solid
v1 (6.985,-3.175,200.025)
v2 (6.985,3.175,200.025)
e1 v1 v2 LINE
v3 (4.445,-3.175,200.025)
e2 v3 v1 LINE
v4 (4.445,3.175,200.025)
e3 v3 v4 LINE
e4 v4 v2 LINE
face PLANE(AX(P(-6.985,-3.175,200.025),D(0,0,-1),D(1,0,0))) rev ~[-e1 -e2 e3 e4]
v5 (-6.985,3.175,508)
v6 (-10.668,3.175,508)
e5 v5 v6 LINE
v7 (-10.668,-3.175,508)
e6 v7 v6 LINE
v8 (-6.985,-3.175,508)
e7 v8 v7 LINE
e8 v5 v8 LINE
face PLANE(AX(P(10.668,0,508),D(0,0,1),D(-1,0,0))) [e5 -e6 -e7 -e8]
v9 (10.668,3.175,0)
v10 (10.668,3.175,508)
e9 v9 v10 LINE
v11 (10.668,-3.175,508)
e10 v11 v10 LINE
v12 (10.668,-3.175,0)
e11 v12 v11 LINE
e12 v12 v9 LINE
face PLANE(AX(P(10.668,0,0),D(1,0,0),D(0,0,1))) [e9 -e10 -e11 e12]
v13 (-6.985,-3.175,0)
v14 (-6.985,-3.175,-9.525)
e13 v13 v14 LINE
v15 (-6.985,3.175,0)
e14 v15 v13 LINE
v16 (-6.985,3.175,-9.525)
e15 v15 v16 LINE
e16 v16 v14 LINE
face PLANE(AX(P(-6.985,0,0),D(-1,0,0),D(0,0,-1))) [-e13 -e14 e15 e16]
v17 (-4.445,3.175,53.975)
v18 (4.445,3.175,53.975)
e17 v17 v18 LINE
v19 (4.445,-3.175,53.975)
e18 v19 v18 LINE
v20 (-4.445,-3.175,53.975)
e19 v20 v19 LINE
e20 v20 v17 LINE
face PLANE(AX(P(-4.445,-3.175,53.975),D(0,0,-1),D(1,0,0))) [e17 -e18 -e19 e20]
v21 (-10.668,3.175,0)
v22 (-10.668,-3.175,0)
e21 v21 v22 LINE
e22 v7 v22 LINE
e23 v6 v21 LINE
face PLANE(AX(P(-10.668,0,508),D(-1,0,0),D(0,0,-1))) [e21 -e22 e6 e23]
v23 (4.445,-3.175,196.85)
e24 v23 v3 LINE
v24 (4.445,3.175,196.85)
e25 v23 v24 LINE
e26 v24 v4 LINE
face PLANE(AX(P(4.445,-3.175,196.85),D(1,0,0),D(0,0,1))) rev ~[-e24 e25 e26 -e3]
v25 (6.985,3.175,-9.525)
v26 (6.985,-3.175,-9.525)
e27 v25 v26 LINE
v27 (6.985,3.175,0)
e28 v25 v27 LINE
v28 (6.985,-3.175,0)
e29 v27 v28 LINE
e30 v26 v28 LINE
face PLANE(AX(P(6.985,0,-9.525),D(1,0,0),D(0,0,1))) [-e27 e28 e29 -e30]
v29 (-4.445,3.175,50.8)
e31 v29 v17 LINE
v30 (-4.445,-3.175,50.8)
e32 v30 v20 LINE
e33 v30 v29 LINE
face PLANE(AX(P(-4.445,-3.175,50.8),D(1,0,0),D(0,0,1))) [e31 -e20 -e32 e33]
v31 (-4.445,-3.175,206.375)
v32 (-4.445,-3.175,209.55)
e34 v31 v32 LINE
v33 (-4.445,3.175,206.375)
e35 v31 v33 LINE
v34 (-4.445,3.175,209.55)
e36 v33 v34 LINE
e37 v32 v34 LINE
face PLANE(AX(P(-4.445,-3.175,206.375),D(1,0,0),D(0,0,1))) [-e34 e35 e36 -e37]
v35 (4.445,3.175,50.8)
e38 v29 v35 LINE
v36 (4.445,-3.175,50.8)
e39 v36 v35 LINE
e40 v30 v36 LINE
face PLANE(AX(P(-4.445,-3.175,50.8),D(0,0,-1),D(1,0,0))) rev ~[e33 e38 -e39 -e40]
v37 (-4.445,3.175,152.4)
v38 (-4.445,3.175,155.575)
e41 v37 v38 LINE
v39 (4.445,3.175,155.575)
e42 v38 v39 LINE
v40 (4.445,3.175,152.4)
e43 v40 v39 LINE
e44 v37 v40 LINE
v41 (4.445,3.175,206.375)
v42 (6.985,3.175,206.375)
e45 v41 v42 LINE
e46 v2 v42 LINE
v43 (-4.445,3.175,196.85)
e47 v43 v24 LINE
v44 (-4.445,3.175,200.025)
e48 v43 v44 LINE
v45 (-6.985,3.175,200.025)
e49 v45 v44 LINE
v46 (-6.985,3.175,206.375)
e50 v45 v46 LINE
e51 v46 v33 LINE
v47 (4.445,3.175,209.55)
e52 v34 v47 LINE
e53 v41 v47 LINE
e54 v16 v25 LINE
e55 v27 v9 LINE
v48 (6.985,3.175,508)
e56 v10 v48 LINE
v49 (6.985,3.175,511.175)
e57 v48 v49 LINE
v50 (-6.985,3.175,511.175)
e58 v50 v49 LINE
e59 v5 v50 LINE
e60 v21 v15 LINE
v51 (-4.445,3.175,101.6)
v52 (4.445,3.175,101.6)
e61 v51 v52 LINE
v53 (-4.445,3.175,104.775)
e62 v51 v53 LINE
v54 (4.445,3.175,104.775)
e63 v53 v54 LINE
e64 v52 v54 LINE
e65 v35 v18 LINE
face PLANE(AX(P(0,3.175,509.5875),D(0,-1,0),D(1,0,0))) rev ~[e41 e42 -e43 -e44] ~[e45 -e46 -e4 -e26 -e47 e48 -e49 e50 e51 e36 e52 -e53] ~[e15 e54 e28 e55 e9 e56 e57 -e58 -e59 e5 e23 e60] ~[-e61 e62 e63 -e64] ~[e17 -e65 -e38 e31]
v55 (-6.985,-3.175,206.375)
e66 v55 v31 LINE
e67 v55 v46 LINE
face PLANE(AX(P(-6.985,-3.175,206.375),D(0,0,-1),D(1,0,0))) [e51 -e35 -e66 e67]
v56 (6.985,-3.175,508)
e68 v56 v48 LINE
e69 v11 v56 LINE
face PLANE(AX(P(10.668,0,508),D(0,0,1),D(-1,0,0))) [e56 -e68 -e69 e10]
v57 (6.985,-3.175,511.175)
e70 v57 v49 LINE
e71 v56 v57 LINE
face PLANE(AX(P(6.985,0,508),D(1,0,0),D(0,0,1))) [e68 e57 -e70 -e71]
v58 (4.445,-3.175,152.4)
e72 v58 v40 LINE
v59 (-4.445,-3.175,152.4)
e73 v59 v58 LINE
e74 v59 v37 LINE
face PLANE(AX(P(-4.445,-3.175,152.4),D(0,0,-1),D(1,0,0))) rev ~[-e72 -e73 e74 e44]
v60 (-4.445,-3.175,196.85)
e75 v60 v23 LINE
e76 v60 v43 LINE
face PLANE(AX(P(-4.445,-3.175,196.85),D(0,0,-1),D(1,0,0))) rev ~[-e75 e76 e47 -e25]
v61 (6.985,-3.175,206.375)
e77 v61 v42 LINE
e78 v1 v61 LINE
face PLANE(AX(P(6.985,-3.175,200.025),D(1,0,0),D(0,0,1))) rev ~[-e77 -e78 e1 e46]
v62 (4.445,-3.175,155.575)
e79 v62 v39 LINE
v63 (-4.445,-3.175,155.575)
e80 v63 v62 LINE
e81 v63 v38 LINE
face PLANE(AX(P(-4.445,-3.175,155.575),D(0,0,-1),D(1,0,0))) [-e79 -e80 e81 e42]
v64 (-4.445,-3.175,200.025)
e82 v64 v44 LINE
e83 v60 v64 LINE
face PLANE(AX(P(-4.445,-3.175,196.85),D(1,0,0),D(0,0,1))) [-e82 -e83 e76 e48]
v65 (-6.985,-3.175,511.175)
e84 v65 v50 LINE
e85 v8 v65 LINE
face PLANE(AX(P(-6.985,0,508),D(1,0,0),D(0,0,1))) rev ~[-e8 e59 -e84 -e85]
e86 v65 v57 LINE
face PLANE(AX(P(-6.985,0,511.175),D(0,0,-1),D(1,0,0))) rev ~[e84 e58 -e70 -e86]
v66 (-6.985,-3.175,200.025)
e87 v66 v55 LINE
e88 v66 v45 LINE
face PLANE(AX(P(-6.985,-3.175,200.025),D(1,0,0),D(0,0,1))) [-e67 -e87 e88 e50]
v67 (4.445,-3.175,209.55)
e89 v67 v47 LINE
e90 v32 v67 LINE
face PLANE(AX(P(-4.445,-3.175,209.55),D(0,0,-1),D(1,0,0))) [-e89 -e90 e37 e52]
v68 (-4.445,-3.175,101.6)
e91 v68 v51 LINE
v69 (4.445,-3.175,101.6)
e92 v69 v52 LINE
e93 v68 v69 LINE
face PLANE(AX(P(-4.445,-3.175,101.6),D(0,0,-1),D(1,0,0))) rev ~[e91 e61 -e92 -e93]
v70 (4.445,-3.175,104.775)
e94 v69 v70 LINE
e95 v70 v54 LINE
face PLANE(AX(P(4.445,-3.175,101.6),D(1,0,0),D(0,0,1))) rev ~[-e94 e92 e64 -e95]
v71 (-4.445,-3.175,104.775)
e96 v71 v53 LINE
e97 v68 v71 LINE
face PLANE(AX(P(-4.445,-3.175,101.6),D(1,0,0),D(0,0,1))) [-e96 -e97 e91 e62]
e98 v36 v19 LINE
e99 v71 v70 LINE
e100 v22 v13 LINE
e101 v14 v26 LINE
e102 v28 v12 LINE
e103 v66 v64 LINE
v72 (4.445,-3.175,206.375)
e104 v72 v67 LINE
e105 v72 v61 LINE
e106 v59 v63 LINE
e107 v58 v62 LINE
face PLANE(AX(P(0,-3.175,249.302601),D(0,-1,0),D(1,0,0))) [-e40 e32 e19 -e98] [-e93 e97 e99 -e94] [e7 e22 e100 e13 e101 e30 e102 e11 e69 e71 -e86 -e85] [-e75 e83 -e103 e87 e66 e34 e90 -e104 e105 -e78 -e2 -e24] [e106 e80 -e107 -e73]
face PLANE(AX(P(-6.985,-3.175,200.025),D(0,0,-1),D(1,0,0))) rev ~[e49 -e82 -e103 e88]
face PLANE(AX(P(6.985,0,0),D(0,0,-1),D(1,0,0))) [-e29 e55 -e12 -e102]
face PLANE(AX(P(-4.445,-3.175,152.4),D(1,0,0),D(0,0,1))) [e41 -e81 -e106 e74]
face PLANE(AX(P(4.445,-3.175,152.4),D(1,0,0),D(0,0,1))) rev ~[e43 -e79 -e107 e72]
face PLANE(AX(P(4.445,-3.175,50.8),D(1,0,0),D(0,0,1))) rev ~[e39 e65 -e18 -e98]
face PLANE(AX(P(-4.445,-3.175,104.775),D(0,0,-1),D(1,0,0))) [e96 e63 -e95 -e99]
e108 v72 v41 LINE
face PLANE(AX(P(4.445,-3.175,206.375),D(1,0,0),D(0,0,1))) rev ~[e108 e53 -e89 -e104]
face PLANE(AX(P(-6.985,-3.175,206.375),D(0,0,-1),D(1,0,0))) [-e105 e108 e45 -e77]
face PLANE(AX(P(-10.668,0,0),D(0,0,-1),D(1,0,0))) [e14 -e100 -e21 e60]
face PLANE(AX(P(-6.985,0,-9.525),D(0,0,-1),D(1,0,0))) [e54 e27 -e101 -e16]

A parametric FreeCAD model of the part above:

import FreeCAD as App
import Part
import Sketcher
Q = App.Units.Quantity

doc = App.newDocument("Part")
body = doc.addObject("PartDesign::Body", "Body")

sketch1 = body.newObject("Sketcher::SketchObject", "Sketch")
sketch1.AttachmentSupport = (doc.getObject("XZ_Plane"), [""])
sketch1.MapMode = "FlatFace"
sketch1.addGeometry(Part.LineSegment(App.Vector(-10.7, 508, 0), App.Vector(-10.7, 0, 0)), False)
sketch1.addGeometry(Part.LineSegment(App.Vector(-10.7, 0, 0), App.Vector(-7, 0, 0)), False)
sketch1.addGeometry(Part.LineSegment(App.Vector(-7, 0, 0), App.Vector(-7, -9.5, 0)), False)
sketch1.addGeometry(Part.LineSegment(App.Vector(-7, -9.5, 0), App.Vector(7, -9.5, 0)), False)
sketch1.addGeometry(Part.LineSegment(App.Vector(7, -9.5, 0), App.Vector(7, 0, 0)), False)
sketch1.addGeometry(Part.LineSegment(App.Vector(7, 0, 0), App.Vector(10.7, 0, 0)), False)
sketch1.addGeometry(Part.LineSegment(App.Vector(10.7, 0, 0), App.Vector(10.7, 508, 0)), False)
sketch1.addGeometry(Part.LineSegment(App.Vector(10.7, 508, 0), App.Vector(-10.7, 508, 0)), False)
sketch1.addConstraint(Sketcher.Constraint("Coincident", 0, 2, 1, 1))
sketch1.addConstraint(Sketcher.Constraint("Coincident", 1, 2, 2, 1))
sketch1.addConstraint(Sketcher.Constraint("Coincident", 2, 2, 3, 1))
sketch1.addConstraint(Sketcher.Constraint("Coincident", 3, 2, 4, 1))
sketch1.addConstraint(Sketcher.Constraint("Coincident", 4, 2, 5, 1))
sketch1.addConstraint(Sketcher.Constraint("Coincident", 5, 2, 6, 1))
sketch1.addConstraint(Sketcher.Constraint("Coincident", 6, 2, 7, 1))
sketch1.addConstraint(Sketcher.Constraint("Coincident", 7, 2, 0, 1))
sketch1.addConstraint(Sketcher.Constraint("Vertical", 0))
sketch1.addConstraint(Sketcher.Constraint("Horizontal", 1))
sketch1.addConstraint(Sketcher.Constraint("Vertical", 2))
sketch1.addConstraint(Sketcher.Constraint("Horizontal", 3))
sketch1.addConstraint(Sketcher.Constraint("Vertical", 4))
sketch1.addConstraint(Sketcher.Constraint("Horizontal", 5))
sketch1.addConstraint(Sketcher.Constraint("Vertical", 6))
sketch1.addConstraint(Sketcher.Constraint("Horizontal", 7))
sketch1.addConstraint(Sketcher.Constraint("Symmetric", 1, 2, 4, 2, -1, 1))
sketch1.addConstraint(Sketcher.Constraint("Symmetric", 0, 2, 5, 2, -2))
sketch1.addConstraint(Sketcher.Constraint("DistanceY", 0, 2, 0, 1, Q("20 in")))
sketch1.addConstraint(Sketcher.Constraint("DistanceX", 3, 1, 3, 2, Q("0.55 in")))
sketch1.addConstraint(Sketcher.Constraint("DistanceX", 7, 2, 7, 1, Q("0.84 in")))
sketch1.addConstraint(Sketcher.Constraint("DistanceY", 2, 2, 2, 1, Q("0.375 in")))
pad1 = body.newObject("PartDesign::Pad", "Pad")
pad1.Profile = sketch1
pad1.Length = Q("0.25 in")
pad1.Midplane = True

sketch2 = body.newObject("Sketcher::SketchObject", "Sketch001")
sketch2.AttachmentSupport = (doc.getObject("XZ_Plane"), [""])
sketch2.MapMode = "FlatFace"
sketch2.addGeometry(Part.LineSegment(App.Vector(-7, 511.2, 0), App.Vector(-7, 508, 0)), False)
sketch2.addGeometry(Part.LineSegment(App.Vector(-7, 508, 0), App.Vector(7, 508, 0)), False)
sketch2.addGeometry(Part.LineSegment(App.Vector(7, 508, 0), App.Vector(7, 511.2, 0)), False)
sketch2.addGeometry(Part.LineSegment(App.Vector(7, 511.2, 0), App.Vector(-7, 511.2, 0)), False)
sketch2.addConstraint(Sketcher.Constraint("Coincident", 0, 2, 1, 1))
sketch2.addConstraint(Sketcher.Constraint("Coincident", 1, 2, 2, 1))
sketch2.addConstraint(Sketcher.Constraint("Coincident", 2, 2, 3, 1))
sketch2.addConstraint(Sketcher.Constraint("Coincident", 3, 2, 0, 1))
sketch2.addConstraint(Sketcher.Constraint("Vertical", 0))
sketch2.addConstraint(Sketcher.Constraint("Horizontal", 1))
sketch2.addConstraint(Sketcher.Constraint("Vertical", 2))
sketch2.addConstraint(Sketcher.Constraint("Horizontal", 3))
sketch2.addConstraint(Sketcher.Constraint("DistanceY", -1, 1, 0, 2, Q("20 in")))
sketch2.addConstraint(Sketcher.Constraint("DistanceX", 1, 1, 1, 2, Q("0.55 in")))
sketch2.addConstraint(Sketcher.Constraint("DistanceY", 0, 2, 0, 1, Q("0.125 in")))
sketch2.addConstraint(Sketcher.Constraint("DistanceX", 0, 2, -1, 1, Q("0.275 in")))
pad2 = body.newObject("PartDesign::Pad", "Pad001")
pad2.Profile = sketch2
pad2.Type = "TwoLengths"
pad2.Length = Q("0.125 in")
pad2.Length2 = Q("0.125 in")

sketch3 = body.newObject("Sketcher::SketchObject", "Sketch002")
sketch3.AttachmentSupport = (doc.getObject("XZ_Plane"), [""])
sketch3.MapMode = "FlatFace"
sketch3.AttachmentOffset = App.Placement(App.Vector(0, 0, 0.125 * 25.4), App.Rotation())
sketch3.addGeometry(Part.LineSegment(App.Vector(-7, 206, 0), App.Vector(-7, 200, 0)), False)
sketch3.addGeometry(Part.LineSegment(App.Vector(-7, 200, 0), App.Vector(7, 200, 0)), False)
sketch3.addGeometry(Part.LineSegment(App.Vector(7, 200, 0), App.Vector(7, 206, 0)), False)
sketch3.addGeometry(Part.LineSegment(App.Vector(7, 206, 0), App.Vector(-7, 206, 0)), False)
sketch3.addConstraint(Sketcher.Constraint("Coincident", 0, 2, 1, 1))
sketch3.addConstraint(Sketcher.Constraint("Coincident", 1, 2, 2, 1))
sketch3.addConstraint(Sketcher.Constraint("Coincident", 2, 2, 3, 1))
sketch3.addConstraint(Sketcher.Constraint("Coincident", 3, 2, 0, 1))
sketch3.addConstraint(Sketcher.Constraint("Vertical", 0))
sketch3.addConstraint(Sketcher.Constraint("Horizontal", 1))
sketch3.addConstraint(Sketcher.Constraint("Vertical", 2))
sketch3.addConstraint(Sketcher.Constraint("Horizontal", 3))
sketch3.addConstraint(Sketcher.Constraint("DistanceX", 1, 1, 1, 2, Q("0.55 in")))
sketch3.addConstraint(Sketcher.Constraint("DistanceY", 0, 2, 0, 1, Q("0.25 in")))
sketch3.addConstraint(Sketcher.Constraint("DistanceX", 0, 2, -1, 1, Q("0.275 in")))
sketch3.addConstraint(Sketcher.Constraint("DistanceY", -1, 1, 0, 2, Q("7.875 in")))
pocket1 = body.newObject("PartDesign::Pocket", "Pocket")
pocket1.Profile = sketch3
pocket1.Type = "ThroughAll"

sketch4 = body.newObject("Sketcher::SketchObject", "Sketch003")
sketch4.AttachmentSupport = (doc.getObject("XZ_Plane"), [""])
sketch4.MapMode = "FlatFace"
sketch4.AttachmentOffset = App.Placement(App.Vector(0, 0, 0.125 * 25.4), App.Rotation())
sketch4.addGeometry(Part.LineSegment(App.Vector(-4.4, 209.6, 0), App.Vector(-4.4, 206.4, 0)), False)
sketch4.addGeometry(Part.LineSegment(App.Vector(-4.4, 206.4, 0), App.Vector(4.4, 206.4, 0)), False)
sketch4.addGeometry(Part.LineSegment(App.Vector(4.4, 206.4, 0), App.Vector(4.4, 209.6, 0)), False)
sketch4.addGeometry(Part.LineSegment(App.Vector(4.4, 209.6, 0), App.Vector(-4.4, 209.6, 0)), False)
sketch4.addGeometry(Part.LineSegment(App.Vector(-4.4, 200, 0), App.Vector(-4.4, 196.8, 0)), False)
sketch4.addGeometry(Part.LineSegment(App.Vector(-4.4, 196.8, 0), App.Vector(4.4, 196.8, 0)), False)
sketch4.addGeometry(Part.LineSegment(App.Vector(4.4, 196.8, 0), App.Vector(4.4, 200, 0)), False)
sketch4.addGeometry(Part.LineSegment(App.Vector(4.4, 200, 0), App.Vector(-4.4, 200, 0)), False)
sketch4.addConstraint(Sketcher.Constraint("Coincident", 0, 2, 1, 1))
sketch4.addConstraint(Sketcher.Constraint("Coincident", 1, 2, 2, 1))
sketch4.addConstraint(Sketcher.Constraint("Coincident", 2, 2, 3, 1))
sketch4.addConstraint(Sketcher.Constraint("Coincident", 3, 2, 0, 1))
sketch4.addConstraint(Sketcher.Constraint("Coincident", 4, 2, 5, 1))
sketch4.addConstraint(Sketcher.Constraint("Coincident", 5, 2, 6, 1))
sketch4.addConstraint(Sketcher.Constraint("Coincident", 6, 2, 7, 1))
sketch4.addConstraint(Sketcher.Constraint("Coincident", 7, 2, 4, 1))
sketch4.addConstraint(Sketcher.Constraint("Vertical", 0))
sketch4.addConstraint(Sketcher.Constraint("Horizontal", 1))
sketch4.addConstraint(Sketcher.Constraint("Vertical", 2))
sketch4.addConstraint(Sketcher.Constraint("Horizontal", 3))
sketch4.addConstraint(Sketcher.Constraint("Vertical", 4))
sketch4.addConstraint(Sketcher.Constraint("Horizontal", 5))
sketch4.addConstraint(Sketcher.Constraint("Vertical", 6))
sketch4.addConstraint(Sketcher.Constraint("Horizontal", 7))
sketch4.addConstraint(Sketcher.Constraint("Vertical", 3, 2, 4, 2))
sketch4.addConstraint(Sketcher.Constraint("Vertical", 2, 2, 5, 2))
sketch4.addConstraint(Sketcher.Constraint("Equal", 2, 4))
sketch4.addConstraint(Sketcher.Constraint("DistanceX", 1, 1, 1, 2, Q("0.35 in")))
sketch4.addConstraint(Sketcher.Constraint("DistanceY", 4, 2, 3, 2, Q("0.5 in")))
sketch4.addConstraint(Sketcher.Constraint("DistanceY", 0, 2, 0, 1, Q("0.125 in")))
sketch4.addConstraint(Sketcher.Constraint("DistanceY", -1, 1, 2, 2, Q("8.25 in")))
sketch4.addConstraint(Sketcher.Constraint("DistanceX", 0, 2, -1, 1, Q("0.175 in")))
pocket2 = body.newObject("PartDesign::Pocket", "Pocket001")
pocket2.Profile = sketch4
pocket2.Type = "ThroughAll"

sketch5 = body.newObject("Sketcher::SketchObject", "Sketch004")
sketch5.AttachmentSupport = (doc.getObject("XZ_Plane"), [""])
sketch5.MapMode = "FlatFace"
sketch5.AttachmentOffset = App.Placement(App.Vector(0, 0, 0.125 * 25.4), App.Rotation())
sketch5.addGeometry(Part.LineSegment(App.Vector(-4.4, 54, 0), App.Vector(-4.4, 50.8, 0)), False)
sketch5.addGeometry(Part.LineSegment(App.Vector(-4.4, 50.8, 0), App.Vector(4.4, 50.8, 0)), False)
sketch5.addGeometry(Part.LineSegment(App.Vector(4.4, 50.8, 0), App.Vector(4.4, 54, 0)), False)
sketch5.addGeometry(Part.LineSegment(App.Vector(4.4, 54, 0), App.Vector(-4.4, 54, 0)), False)
sketch5.addGeometry(Part.LineSegment(App.Vector(-4.4, 104.8, 0), App.Vector(-4.4, 101.6, 0)), False)
sketch5.addGeometry(Part.LineSegment(App.Vector(-4.4, 101.6, 0), App.Vector(4.4, 101.6, 0)), False)
sketch5.addGeometry(Part.LineSegment(App.Vector(4.4, 101.6, 0), App.Vector(4.4, 104.8, 0)), False)
sketch5.addGeometry(Part.LineSegment(App.Vector(4.4, 104.8, 0), App.Vector(-4.4, 104.8, 0)), False)
sketch5.addGeometry(Part.LineSegment(App.Vector(-4.4, 155.6, 0), App.Vector(-4.4, 152.4, 0)), False)
sketch5.addGeometry(Part.LineSegment(App.Vector(-4.4, 152.4, 0), App.Vector(4.4, 152.4, 0)), False)
sketch5.addGeometry(Part.LineSegment(App.Vector(4.4, 152.4, 0), App.Vector(4.4, 155.6, 0)), False)
sketch5.addGeometry(Part.LineSegment(App.Vector(4.4, 155.6, 0), App.Vector(-4.4, 155.6, 0)), False)
sketch5.addConstraint(Sketcher.Constraint("Coincident", 0, 2, 1, 1))
sketch5.addConstraint(Sketcher.Constraint("Coincident", 1, 2, 2, 1))
sketch5.addConstraint(Sketcher.Constraint("Coincident", 2, 2, 3, 1))
sketch5.addConstraint(Sketcher.Constraint("Coincident", 3, 2, 0, 1))
sketch5.addConstraint(Sketcher.Constraint("Coincident", 4, 2, 5, 1))
sketch5.addConstraint(Sketcher.Constraint("Coincident", 5, 2, 6, 1))
sketch5.addConstraint(Sketcher.Constraint("Coincident", 6, 2, 7, 1))
sketch5.addConstraint(Sketcher.Constraint("Coincident", 7, 2, 4, 1))
sketch5.addConstraint(Sketcher.Constraint("Coincident", 8, 2, 9, 1))
sketch5.addConstraint(Sketcher.Constraint("Coincident", 9, 2, 10, 1))
sketch5.addConstraint(Sketcher.Constraint("Coincident", 10, 2, 11, 1))
sketch5.addConstraint(Sketcher.Constraint("Coincident", 11, 2, 8, 1))
sketch5.addConstraint(Sketcher.Constraint("Vertical", 0))
sketch5.addConstraint(Sketcher.Constraint("Horizontal", 1))
sketch5.addConstraint(Sketcher.Constraint("Vertical", 2))
sketch5.addConstraint(Sketcher.Constraint("Horizontal", 3))
sketch5.addConstraint(Sketcher.Constraint("Vertical", 4))
sketch5.addConstraint(Sketcher.Constraint("Horizontal", 5))
sketch5.addConstraint(Sketcher.Constraint("Vertical", 6))
sketch5.addConstraint(Sketcher.Constraint("Horizontal", 7))
sketch5.addConstraint(Sketcher.Constraint("Vertical", 8))
sketch5.addConstraint(Sketcher.Constraint("Horizontal", 9))
sketch5.addConstraint(Sketcher.Constraint("Vertical", 10))
sketch5.addConstraint(Sketcher.Constraint("Horizontal", 11))
sketch5.addConstraint(Sketcher.Constraint("Vertical", 3, 2, 4, 2))
sketch5.addConstraint(Sketcher.Constraint("Vertical", 2, 2, 5, 2))
sketch5.addConstraint(Sketcher.Constraint("Vertical", 7, 2, 8, 2))
sketch5.addConstraint(Sketcher.Constraint("Vertical", 6, 2, 9, 2))
sketch5.addConstraint(Sketcher.Constraint("Equal", 2, 4))
sketch5.addConstraint(Sketcher.Constraint("Equal", 6, 8))
sketch5.addConstraint(Sketcher.Constraint("DistanceY", -1, 1, 0, 2, Q("2 in")))
sketch5.addConstraint(Sketcher.Constraint("DistanceY", -1, 1, 4, 2, Q("4 in")))
sketch5.addConstraint(Sketcher.Constraint("DistanceY", -1, 1, 8, 2, Q("6 in")))
sketch5.addConstraint(Sketcher.Constraint("DistanceX", 1, 1, 1, 2, Q("0.35 in")))
sketch5.addConstraint(Sketcher.Constraint("DistanceY", 0, 2, 0, 1, Q("0.125 in")))
sketch5.addConstraint(Sketcher.Constraint("DistanceX", 0, 2, -1, 1, Q("0.175 in")))
pocket3 = body.newObject("PartDesign::Pocket", "Pocket002")
pocket3.Profile = sketch5
pocket3.Type = "ThroughAll"

doc.recompute()
